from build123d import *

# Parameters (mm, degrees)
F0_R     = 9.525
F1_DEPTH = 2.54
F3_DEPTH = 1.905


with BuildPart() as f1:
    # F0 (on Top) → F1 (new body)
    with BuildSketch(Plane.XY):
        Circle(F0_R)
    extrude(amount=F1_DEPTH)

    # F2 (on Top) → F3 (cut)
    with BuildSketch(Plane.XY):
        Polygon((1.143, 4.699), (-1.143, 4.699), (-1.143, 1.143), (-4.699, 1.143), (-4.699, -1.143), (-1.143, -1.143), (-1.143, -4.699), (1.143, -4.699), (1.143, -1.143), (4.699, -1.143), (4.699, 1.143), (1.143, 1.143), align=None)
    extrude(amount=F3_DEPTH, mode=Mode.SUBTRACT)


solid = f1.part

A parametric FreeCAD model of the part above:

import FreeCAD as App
import Part
import Sketcher
from FreeCAD import Vector
Q = App.Units.Quantity

doc = App.newDocument("Part")
body = doc.addObject("PartDesign::Body", "Body")

# Sketch on XY plane
sketch1 = body.newObject("Sketcher::SketchObject", "Sketch")
sketch1.AttachmentSupport = (doc.getObject("XY_Plane"), [""])
sketch1.MapMode = "FlatFace"
sketch1.addGeometry(Part.Circle(Vector(0, 0, 0), Vector(0, 0, 1), 9.525), False)
sketch1.addConstraint(Sketcher.Constraint("Coincident", 0, 3, -1, 1))
sketch1.addConstraint(Sketcher.Constraint("Diameter", 0, Q("0.75 in")))
pad1 = body.newObject("PartDesign::Pad", "Pad")
pad1.Profile = sketch1
pad1.Length = Q("0.1 in")

# Sketch on XY plane
sketch2 = body.newObject("Sketcher::SketchObject", "Sketch001")
sketch2.AttachmentSupport = (doc.getObject("XY_Plane"), [""])
sketch2.MapMode = "FlatFace"
sketch2.addGeometry(Part.LineSegment(Vector(1.143, 4.699, 0), Vector(-1.143, 4.699, 0)), False)
sketch2.addGeometry(Part.LineSegment(Vector(-1.143, 4.699, 0), Vector(-1.143, 1.143, 0)), False)
sketch2.addGeometry(Part.LineSegment(Vector(-1.143, 1.143, 0), Vector(-4.699, 1.143, 0)), False)
sketch2.addGeometry(Part.LineSegment(Vector(-4.699, 1.143, 0), Vector(-4.699, -1.143, 0)), False)
sketch2.addGeometry(Part.LineSegment(Vector(-4.699, -1.143, 0), Vector(-1.143, -1.143, 0)), False)
sketch2.addGeometry(Part.LineSegment(Vector(-1.143, -1.143, 0), Vector(-1.143, -4.699, 0)), False)
sketch2.addGeometry(Part.LineSegment(Vector(-1.143, -4.699, 0), Vector(1.143, -4.699, 0)), False)
sketch2.addGeometry(Part.LineSegment(Vector(1.143, -4.699, 0), Vector(1.143, -1.143, 0)), False)
sketch2.addGeometry(Part.LineSegment(Vector(1.143, -1.143, 0), Vector(4.699, -1.143, 0)), False)
sketch2.addGeometry(Part.LineSegment(Vector(4.699, -1.143, 0), Vector(4.699, 1.143, 0)), False)
sketch2.addGeometry(Part.LineSegment(Vector(4.699, 1.143, 0), Vector(1.143, 1.143, 0)), False)
sketch2.addGeometry(Part.LineSegment(Vector(1.143, 1.143, 0), Vector(1.143, 4.699, 0)), False)
sketch2.addConstraint(Sketcher.Constraint("Coincident", 0, 2, 1, 1))
sketch2.addConstraint(Sketcher.Constraint("Coincident", 1, 2, 2, 1))
sketch2.addConstraint(Sketcher.Constraint("Coincident", 2, 2, 3, 1))
sketch2.addConstraint(Sketcher.Constraint("Coincident", 3, 2, 4, 1))
sketch2.addConstraint(Sketcher.Constraint("Coincident", 4, 2, 5, 1))
sketch2.addConstraint(Sketcher.Constraint("Coincident", 5, 2, 6, 1))
sketch2.addConstraint(Sketcher.Constraint("Coincident", 6, 2, 7, 1))
sketch2.addConstraint(Sketcher.Constraint("Coincident", 7, 2, 8, 1))
sketch2.addConstraint(Sketcher.Constraint("Coincident", 8, 2, 9, 1))
sketch2.addConstraint(Sketcher.Constraint("Coincident", 9, 2, 10, 1))
sketch2.addConstraint(Sketcher.Constraint("Coincident", 10, 2, 11, 1))
sketch2.addConstraint(Sketcher.Constraint("Coincident", 11, 2, 0, 1))
sketch2.addConstraint(Sketcher.Constraint("Horizontal", 0))
sketch2.addConstraint(Sketcher.Constraint("Vertical", 1))
sketch2.addConstraint(Sketcher.Constraint("Horizontal", 2))
sketch2.addConstraint(Sketcher.Constraint("Vertical", 3))
sketch2.addConstraint(Sketcher.Constraint("Horizontal", 4))
sketch2.addConstraint(Sketcher.Constraint("Vertical", 5))
sketch2.addConstraint(Sketcher.Constraint("Horizontal", 6))
sketch2.addConstraint(Sketcher.Constraint("Vertical", 7))
sketch2.addConstraint(Sketcher.Constraint("Horizontal", 8))
sketch2.addConstraint(Sketcher.Constraint("Vertical", 9))
sketch2.addConstraint(Sketcher.Constraint("Horizontal", 10))
sketch2.addConstraint(Sketcher.Constraint("Vertical", 11))
sketch2.addConstraint(Sketcher.Constraint("Symmetric", 0, 2, 6, 2, -1, 1))
sketch2.addConstraint(Sketcher.Constraint("Symmetric", 2, 2, 8, 2, -1, 1))
sketch2.addConstraint(Sketcher.Constraint("Symmetric", 4, 2, 10, 2, -1, 1))
sketch2.addConstraint(Sketcher.Constraint("Symmetric", 4, 2, 7, 2, -2))
sketch2.addConstraint(Sketcher.Constraint("Equal", 10, 1))
sketch2.addConstraint(Sketcher.Constraint("Equal", 6, 3))
sketch2.addConstraint(Sketcher.Constraint("DistanceX", 0, 2, 0, 1, Q("0.09 in")))
sketch2.addConstraint(Sketcher.Constraint("DistanceX", 2, 2, 2, 1, Q("0.14 in")))
pocket1 = body.newObject("PartDesign::Pocket", "Pocket")
pocket1.Profile = sketch2
pocket1.Length = Q("0.075 in")
pocket1.Reversed = True

doc.recompute()
